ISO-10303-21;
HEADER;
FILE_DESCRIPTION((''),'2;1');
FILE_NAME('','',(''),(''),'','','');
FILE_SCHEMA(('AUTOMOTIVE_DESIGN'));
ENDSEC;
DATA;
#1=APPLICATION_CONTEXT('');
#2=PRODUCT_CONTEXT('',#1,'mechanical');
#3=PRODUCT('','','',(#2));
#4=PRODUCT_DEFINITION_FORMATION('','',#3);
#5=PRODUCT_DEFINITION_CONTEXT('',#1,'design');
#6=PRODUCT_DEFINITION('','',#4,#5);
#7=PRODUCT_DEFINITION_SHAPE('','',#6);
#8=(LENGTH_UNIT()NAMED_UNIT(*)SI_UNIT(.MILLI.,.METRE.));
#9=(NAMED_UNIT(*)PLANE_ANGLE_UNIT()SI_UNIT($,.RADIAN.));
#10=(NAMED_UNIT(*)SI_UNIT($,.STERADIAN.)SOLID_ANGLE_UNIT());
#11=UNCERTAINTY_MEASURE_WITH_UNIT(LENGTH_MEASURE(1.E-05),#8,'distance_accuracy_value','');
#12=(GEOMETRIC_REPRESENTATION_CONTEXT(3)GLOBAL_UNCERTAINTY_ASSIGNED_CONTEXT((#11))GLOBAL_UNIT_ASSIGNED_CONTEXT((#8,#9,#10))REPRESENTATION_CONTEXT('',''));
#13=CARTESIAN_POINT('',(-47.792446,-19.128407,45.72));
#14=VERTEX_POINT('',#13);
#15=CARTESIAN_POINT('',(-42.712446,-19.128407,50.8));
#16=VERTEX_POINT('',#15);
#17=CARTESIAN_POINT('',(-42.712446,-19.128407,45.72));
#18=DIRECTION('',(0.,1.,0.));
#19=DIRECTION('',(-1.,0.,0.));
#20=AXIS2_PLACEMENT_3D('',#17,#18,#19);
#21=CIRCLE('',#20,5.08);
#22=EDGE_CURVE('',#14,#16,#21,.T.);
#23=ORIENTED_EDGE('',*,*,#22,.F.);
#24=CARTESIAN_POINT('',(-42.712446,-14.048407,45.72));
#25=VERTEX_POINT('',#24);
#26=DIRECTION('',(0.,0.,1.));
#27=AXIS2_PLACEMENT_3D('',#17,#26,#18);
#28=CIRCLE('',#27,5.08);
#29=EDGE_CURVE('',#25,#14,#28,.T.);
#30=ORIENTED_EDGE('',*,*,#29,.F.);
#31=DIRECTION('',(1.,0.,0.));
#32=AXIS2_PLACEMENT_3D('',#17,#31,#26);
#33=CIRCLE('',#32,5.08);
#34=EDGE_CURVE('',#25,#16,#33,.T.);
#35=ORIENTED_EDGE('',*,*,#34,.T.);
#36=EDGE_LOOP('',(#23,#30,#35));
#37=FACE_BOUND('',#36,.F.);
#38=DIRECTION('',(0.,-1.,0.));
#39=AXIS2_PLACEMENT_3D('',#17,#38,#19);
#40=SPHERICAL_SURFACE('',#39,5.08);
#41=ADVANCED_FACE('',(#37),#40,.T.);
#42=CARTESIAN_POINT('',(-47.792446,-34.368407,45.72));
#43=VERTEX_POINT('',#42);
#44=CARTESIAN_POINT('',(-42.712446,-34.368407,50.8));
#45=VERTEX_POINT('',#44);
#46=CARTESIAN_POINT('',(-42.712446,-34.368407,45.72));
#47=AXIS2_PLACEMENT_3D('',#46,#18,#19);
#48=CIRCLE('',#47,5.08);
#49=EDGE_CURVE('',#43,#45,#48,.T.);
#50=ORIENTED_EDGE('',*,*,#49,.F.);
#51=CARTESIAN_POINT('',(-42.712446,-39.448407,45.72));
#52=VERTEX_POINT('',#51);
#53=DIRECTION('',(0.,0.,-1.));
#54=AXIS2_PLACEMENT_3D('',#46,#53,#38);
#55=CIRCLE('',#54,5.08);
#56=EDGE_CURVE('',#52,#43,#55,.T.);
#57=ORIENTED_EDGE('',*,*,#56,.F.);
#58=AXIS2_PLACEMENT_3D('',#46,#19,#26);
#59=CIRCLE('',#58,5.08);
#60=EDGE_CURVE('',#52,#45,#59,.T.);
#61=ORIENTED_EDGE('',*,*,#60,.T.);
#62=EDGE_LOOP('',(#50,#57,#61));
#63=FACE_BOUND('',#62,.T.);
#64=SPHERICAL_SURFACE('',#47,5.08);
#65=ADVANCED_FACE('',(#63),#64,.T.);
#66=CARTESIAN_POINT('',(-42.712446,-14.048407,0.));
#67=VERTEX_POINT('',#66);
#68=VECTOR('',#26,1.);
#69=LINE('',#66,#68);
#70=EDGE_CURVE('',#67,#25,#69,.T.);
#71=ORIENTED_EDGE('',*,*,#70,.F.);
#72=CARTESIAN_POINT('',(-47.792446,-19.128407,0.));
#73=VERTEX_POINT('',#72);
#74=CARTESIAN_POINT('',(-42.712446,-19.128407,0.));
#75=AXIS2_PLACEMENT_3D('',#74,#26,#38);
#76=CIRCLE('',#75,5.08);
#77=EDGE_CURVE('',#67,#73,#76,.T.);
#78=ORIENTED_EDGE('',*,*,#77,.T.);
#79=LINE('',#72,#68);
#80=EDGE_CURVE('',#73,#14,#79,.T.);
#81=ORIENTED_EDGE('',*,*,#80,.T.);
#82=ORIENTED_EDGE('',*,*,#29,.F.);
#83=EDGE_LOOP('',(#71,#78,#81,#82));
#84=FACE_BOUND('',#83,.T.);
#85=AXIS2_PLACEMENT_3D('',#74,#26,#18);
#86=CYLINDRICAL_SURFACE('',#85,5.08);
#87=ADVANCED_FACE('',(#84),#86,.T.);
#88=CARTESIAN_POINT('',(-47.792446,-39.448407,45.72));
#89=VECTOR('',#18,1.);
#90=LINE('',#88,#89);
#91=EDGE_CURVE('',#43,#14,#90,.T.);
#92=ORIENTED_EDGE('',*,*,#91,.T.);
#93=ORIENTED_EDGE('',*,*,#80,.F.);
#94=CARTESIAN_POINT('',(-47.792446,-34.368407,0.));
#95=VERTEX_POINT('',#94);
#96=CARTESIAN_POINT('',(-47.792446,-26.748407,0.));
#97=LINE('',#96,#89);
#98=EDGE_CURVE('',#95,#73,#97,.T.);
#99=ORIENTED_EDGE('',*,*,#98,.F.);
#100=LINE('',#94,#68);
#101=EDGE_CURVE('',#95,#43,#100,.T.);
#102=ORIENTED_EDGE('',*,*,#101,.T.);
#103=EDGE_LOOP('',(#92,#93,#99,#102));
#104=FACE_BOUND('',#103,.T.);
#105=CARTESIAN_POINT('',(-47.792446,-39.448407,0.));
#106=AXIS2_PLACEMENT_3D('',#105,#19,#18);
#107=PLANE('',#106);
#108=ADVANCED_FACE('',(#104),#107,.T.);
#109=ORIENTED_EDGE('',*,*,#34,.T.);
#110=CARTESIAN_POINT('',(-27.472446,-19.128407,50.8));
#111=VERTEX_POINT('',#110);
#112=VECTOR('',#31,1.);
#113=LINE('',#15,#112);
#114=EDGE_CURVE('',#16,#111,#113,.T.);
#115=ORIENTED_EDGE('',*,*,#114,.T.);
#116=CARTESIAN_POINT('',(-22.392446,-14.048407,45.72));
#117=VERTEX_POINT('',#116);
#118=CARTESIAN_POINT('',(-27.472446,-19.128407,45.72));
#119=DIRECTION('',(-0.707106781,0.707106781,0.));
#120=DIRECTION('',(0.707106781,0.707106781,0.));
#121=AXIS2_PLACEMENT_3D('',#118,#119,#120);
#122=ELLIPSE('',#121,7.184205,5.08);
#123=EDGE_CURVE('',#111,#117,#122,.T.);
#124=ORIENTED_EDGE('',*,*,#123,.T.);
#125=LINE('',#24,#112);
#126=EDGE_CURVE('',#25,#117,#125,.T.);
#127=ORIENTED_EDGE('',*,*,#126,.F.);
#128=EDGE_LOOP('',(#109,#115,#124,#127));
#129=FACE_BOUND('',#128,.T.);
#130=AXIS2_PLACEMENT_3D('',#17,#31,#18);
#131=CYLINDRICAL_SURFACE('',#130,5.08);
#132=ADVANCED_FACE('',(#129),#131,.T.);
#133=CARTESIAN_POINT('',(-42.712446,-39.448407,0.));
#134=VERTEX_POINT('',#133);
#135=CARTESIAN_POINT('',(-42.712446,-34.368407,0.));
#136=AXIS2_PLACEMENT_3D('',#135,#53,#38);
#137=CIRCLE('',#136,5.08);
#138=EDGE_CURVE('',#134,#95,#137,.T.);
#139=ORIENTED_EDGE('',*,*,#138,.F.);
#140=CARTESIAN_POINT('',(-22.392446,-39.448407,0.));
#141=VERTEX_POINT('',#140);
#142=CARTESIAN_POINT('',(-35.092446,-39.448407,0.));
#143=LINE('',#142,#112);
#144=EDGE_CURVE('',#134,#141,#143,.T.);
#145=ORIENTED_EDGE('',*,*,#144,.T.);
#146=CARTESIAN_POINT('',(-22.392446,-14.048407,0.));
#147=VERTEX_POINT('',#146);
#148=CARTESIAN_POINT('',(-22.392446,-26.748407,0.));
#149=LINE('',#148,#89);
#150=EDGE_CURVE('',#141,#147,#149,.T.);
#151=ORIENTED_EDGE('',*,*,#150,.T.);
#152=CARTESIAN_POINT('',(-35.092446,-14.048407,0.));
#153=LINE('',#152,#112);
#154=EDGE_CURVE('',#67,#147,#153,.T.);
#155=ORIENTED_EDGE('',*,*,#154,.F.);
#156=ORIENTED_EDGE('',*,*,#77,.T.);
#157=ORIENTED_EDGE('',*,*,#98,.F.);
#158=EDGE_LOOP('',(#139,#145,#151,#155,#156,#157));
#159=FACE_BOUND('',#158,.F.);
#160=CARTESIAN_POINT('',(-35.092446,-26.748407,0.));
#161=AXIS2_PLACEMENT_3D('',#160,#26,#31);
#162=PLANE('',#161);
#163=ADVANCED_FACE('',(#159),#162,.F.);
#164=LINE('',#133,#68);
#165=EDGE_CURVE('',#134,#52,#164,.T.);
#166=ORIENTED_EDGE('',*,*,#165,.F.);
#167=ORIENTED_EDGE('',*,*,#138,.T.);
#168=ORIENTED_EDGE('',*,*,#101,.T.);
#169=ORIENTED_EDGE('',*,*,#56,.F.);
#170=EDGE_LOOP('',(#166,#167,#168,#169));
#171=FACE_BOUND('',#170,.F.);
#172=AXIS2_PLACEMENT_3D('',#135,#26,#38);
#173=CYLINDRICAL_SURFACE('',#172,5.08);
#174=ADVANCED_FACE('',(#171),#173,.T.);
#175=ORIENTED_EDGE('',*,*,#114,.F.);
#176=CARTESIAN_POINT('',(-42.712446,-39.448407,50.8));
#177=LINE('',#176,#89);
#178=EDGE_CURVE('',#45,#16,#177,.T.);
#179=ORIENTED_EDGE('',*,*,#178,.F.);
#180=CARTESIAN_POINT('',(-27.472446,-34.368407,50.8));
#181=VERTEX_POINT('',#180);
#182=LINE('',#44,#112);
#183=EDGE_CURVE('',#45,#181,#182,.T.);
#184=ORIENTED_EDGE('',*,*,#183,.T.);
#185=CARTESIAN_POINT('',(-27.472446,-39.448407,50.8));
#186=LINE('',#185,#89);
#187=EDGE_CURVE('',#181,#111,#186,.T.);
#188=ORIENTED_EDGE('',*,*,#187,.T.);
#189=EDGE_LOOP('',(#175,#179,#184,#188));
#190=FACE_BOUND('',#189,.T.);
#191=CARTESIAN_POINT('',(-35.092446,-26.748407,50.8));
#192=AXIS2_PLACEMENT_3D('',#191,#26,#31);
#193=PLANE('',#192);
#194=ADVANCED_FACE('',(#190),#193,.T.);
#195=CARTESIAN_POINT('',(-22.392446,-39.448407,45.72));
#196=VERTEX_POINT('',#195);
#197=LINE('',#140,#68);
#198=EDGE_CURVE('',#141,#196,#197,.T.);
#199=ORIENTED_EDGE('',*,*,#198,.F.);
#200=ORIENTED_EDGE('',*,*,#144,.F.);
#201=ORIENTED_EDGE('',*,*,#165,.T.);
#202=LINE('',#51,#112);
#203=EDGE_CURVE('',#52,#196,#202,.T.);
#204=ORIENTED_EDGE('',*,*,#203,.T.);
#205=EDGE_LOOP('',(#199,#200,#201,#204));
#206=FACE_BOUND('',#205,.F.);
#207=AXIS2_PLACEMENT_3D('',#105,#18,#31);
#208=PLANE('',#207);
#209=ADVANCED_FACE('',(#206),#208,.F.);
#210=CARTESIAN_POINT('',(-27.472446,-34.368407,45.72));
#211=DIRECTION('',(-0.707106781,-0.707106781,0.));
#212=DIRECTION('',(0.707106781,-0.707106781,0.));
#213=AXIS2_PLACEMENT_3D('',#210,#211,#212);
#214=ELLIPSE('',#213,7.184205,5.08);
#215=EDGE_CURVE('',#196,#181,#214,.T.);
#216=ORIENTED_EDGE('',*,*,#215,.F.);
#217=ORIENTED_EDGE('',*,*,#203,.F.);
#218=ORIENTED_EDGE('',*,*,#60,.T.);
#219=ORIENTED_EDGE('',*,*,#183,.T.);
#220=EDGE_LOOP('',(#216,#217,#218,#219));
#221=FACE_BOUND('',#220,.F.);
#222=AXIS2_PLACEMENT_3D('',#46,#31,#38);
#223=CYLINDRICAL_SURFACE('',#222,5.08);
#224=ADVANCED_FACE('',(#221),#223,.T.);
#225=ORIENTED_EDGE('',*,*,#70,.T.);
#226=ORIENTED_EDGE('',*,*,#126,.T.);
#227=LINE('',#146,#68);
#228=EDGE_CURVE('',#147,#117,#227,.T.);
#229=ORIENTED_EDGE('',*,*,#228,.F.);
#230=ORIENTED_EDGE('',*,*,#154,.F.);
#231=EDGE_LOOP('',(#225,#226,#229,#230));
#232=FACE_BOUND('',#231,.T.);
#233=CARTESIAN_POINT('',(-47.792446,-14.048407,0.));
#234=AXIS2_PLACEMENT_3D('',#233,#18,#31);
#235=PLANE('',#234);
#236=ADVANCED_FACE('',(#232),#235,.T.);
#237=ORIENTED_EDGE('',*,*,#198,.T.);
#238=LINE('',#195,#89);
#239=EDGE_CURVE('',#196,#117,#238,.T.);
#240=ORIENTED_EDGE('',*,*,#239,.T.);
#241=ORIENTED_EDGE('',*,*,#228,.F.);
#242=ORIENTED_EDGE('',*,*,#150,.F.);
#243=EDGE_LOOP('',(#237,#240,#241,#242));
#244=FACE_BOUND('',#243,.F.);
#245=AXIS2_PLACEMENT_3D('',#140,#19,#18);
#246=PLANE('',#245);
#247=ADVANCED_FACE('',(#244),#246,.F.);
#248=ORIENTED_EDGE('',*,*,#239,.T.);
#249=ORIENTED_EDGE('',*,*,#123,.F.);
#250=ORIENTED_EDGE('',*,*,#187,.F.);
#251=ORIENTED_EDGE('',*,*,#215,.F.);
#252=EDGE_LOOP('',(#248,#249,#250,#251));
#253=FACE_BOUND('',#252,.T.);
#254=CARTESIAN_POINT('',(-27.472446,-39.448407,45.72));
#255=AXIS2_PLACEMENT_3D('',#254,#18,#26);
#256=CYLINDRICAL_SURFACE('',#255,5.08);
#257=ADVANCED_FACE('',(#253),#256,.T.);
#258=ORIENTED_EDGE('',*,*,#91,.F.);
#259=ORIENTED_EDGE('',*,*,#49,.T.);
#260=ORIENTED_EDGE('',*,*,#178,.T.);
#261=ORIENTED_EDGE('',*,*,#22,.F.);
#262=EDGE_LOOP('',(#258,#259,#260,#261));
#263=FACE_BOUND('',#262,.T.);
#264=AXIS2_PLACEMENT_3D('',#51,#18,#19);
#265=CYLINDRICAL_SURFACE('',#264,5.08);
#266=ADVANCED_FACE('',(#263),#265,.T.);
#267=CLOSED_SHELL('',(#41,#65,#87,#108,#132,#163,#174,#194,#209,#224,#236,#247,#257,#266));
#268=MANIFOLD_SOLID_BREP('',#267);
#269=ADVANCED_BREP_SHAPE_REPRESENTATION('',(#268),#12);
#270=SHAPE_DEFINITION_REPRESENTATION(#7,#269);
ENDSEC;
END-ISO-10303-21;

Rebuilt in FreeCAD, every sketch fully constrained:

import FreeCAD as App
import Part
import Sketcher
from FreeCAD import Vector
Q = App.Units.Quantity


def edges_at(feature, points):
    """Names of the edges that pass closest to the given points."""
    edges = feature.Shape.Edges
    near = lambda p: min(range(len(edges)), key=lambda i: edges[i].distToShape(Part.Vertex(*p))[0])
    return sorted({f"Edge{near(p) + 1}" for p in points})

doc = App.newDocument("Part")
params = doc.addObject("Spreadsheet::Sheet", "Params")
for row, (alias, value) in enumerate([
    ("sketch1_width", "1 in"),
    ("pad1_length", "2 in"),
    ("fillet_radius", "0.2 in"),
    ("fillet2_radius", "0.2 in"),
], start=1):
    params.set(f"A{row}", alias)
    params.set(f"B{row}", "=" + value)
    params.setAlias(f"B{row}", alias)

body = doc.addObject("PartDesign::Body", "Body")

# Sketch on XY plane
sketch1 = body.newObject("Sketcher::SketchObject", "Sketch")
sketch1.AttachmentSupport = (doc.getObject("XY_Plane"), [""])
sketch1.MapMode = "FlatFace"
sketch1.addGeometry([
    Part.LineSegment(Vector(-47.792446, -14.048407, 0), Vector(-47.792446, -39.448407, 0)),
    Part.LineSegment(Vector(-47.792446, -39.448407, 0), Vector(-22.392446, -39.448407, 0)),
    Part.LineSegment(Vector(-22.392446, -39.448407, 0), Vector(-22.392446, -14.048407, 0)),
    Part.LineSegment(Vector(-22.392446, -14.048407, 0), Vector(-47.792446, -14.048407, 0)),
], False)
sketch1.addConstraint([
    Sketcher.Constraint("Coincident", 0, 2, 1, 1),
    Sketcher.Constraint("Coincident", 1, 2, 2, 1),
    Sketcher.Constraint("Coincident", 2, 2, 3, 1),
    Sketcher.Constraint("Coincident", 3, 2, 0, 1),
    Sketcher.Constraint("Vertical", 0),
    Sketcher.Constraint("Horizontal", 1),
    Sketcher.Constraint("Vertical", 2),
    Sketcher.Constraint("Horizontal", 3),
    Sketcher.Constraint("Equal", 3, 0),
    Sketcher.Constraint("DistanceX", 1, 1, 1, 2, Q("1 in")),
    Sketcher.Constraint("DistanceX", 0, 2, -1, 1, 47.792446),
    Sketcher.Constraint("DistanceY", 0, 2, -1, 1, 39.448407),
])
sketch1.setExpression("Constraints[9]", "Params.sketch1_width")
pad1 = body.newObject("PartDesign::Pad", "Pad")
pad1.Profile = sketch1
pad1.setExpression("Length", "Params.pad1_length")
doc.recompute()

fillet = body.newObject("PartDesign::Fillet", "Fillet")
fillet.Base = (pad1, edges_at(pad1, [(-47.792, -26.748, 50.8)]))
fillet.setExpression("Radius", "Params.fillet_radius")
doc.recompute()

fillet2 = body.newObject("PartDesign::Fillet", "Fillet001")
fillet2.Base = (fillet, edges_at(fillet, [(-32.552, -39.448, 50.8), (-22.392, -26.748, 50.8), (-32.552, -14.048, 50.8)]))
fillet2.setExpression("Radius", "Params.fillet2_radius")

doc.recompute()
